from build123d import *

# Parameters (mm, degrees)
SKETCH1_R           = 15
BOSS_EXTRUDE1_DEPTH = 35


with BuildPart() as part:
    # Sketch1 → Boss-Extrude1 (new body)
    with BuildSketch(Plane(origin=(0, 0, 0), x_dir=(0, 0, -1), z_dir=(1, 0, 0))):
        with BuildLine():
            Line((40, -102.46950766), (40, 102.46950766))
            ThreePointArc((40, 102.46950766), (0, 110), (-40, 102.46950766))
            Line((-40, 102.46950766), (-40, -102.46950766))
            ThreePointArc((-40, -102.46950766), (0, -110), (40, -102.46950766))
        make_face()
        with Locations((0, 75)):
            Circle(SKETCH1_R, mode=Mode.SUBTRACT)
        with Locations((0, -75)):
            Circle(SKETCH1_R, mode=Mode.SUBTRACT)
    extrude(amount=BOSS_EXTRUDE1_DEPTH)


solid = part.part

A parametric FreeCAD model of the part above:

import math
import FreeCAD as App
import Part
import Sketcher

doc = App.newDocument("Part")
body = doc.addObject("PartDesign::Body", "Body")

sketch1 = body.newObject("Sketcher::SketchObject", "Sketch")
sketch1.AttachmentSupport = (doc.getObject("YZ_Plane"), [""])
sketch1.MapMode = "FlatFace"
sketch1.addGeometry([
    Part.LineSegment(App.Vector(-102, -40, 0), App.Vector(102, -40, 0)),
    Part.ArcOfCircle(Part.Circle(App.Vector(0, 0, 0), App.Vector(0, 0, 1), 110), math.radians(-21), math.radians(21)),
    Part.LineSegment(App.Vector(102, 40, 0), App.Vector(-102, 40, 0)),
    Part.ArcOfCircle(Part.Circle(App.Vector(0, 0, 0), App.Vector(0, 0, 1), 110), math.radians(159), math.radians(201)),
    Part.Circle(App.Vector(-75, 0, 0), App.Vector(0, 0, 1), 15),
    Part.Circle(App.Vector(75, 0, 0), App.Vector(0, 0, 1), 15),
], False)
sketch1.addConstraint([
    Sketcher.Constraint("Coincident", 0, 2, 1, 1),
    Sketcher.Constraint("Coincident", 1, 2, 2, 1),
    Sketcher.Constraint("Coincident", 2, 2, 3, 1),
    Sketcher.Constraint("Coincident", 3, 2, 0, 1),
    Sketcher.Constraint("Horizontal", 0),
    Sketcher.Constraint("Horizontal", 2),
    Sketcher.Constraint("Coincident", 1, 3, -1, 1),
    Sketcher.Constraint("Coincident", 3, 3, -1, 1),
    Sketcher.Constraint("Equal", 1, 3),
    Sketcher.Constraint("Equal", 4, 5),
    Sketcher.Constraint("Symmetric", 4, 3, 5, 3, -1, 1),
    Sketcher.Constraint("PointOnObject", 4, 3, -1),
    Sketcher.Constraint("Vertical", 0, 2, 1, 2),
    Sketcher.Constraint("Diameter", 4, 30.0),
    Sketcher.Constraint("Radius", 1, 110.0),
    Sketcher.Constraint("DistanceX", 4, 3, -1, 1, 75.0),
    Sketcher.Constraint("DistanceY", 0, 2, -1, 1, 40.0),
])
pad1 = body.newObject("PartDesign::Pad", "Pad")
pad1.Profile = sketch1
pad1.Length = 35

doc.recompute()
